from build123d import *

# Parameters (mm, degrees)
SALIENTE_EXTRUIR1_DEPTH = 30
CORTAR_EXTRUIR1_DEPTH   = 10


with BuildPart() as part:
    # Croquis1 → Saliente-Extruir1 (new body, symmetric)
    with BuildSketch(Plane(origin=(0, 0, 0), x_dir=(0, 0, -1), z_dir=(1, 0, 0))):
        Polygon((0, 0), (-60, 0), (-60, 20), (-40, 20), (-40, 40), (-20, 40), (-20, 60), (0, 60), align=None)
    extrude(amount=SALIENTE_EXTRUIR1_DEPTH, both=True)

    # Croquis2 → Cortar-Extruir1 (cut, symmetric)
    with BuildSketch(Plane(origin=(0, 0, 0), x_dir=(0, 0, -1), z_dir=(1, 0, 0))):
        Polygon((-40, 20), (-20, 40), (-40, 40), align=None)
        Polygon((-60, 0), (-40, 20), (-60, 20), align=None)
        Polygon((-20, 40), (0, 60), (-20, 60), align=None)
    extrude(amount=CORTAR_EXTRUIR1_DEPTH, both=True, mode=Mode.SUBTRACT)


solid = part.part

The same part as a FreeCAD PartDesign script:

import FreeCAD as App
import Part
import Sketcher
from FreeCAD import Vector
Q = App.Units.Quantity

doc = App.newDocument("Part")
body = doc.addObject("PartDesign::Body", "Body")

# Sketch on YZ plane
sketch1 = body.newObject("Sketcher::SketchObject", "Sketch")
sketch1.AttachmentSupport = (doc.getObject("YZ_Plane"), [""])
sketch1.MapMode = "FlatFace"
sketch1.addGeometry([
    Part.LineSegment(Vector(0, 60, 0), Vector(0, 0, 0)),  # 0
    Part.LineSegment(Vector(0, 0, 0), Vector(60, 0, 0)),  # 1
    Part.LineSegment(Vector(60, 0, 0), Vector(60, 20, 0)),  # 2
    Part.LineSegment(Vector(60, 20, 0), Vector(40, 20, 0)),  # 3
    Part.LineSegment(Vector(40, 20, 0), Vector(40, 40, 0)),  # 4
    Part.LineSegment(Vector(40, 40, 0), Vector(20, 40, 0)),  # 5
    Part.LineSegment(Vector(20, 40, 0), Vector(20, 60, 0)),  # 6
    Part.LineSegment(Vector(20, 60, 0), Vector(0, 60, 0)),  # 7
], False)
sketch1.addConstraint([
    Sketcher.Constraint("Coincident", 0, 2, 1, 1),
    Sketcher.Constraint("Coincident", 1, 2, 2, 1),
    Sketcher.Constraint("Coincident", 2, 2, 3, 1),
    Sketcher.Constraint("Coincident", 3, 2, 4, 1),
    Sketcher.Constraint("Coincident", 4, 2, 5, 1),
    Sketcher.Constraint("Coincident", 5, 2, 6, 1),
    Sketcher.Constraint("Coincident", 6, 2, 7, 1),
    Sketcher.Constraint("Coincident", 7, 2, 0, 1),
    Sketcher.Constraint("Vertical", 0),
    Sketcher.Constraint("Horizontal", 1),
    Sketcher.Constraint("Vertical", 2),
    Sketcher.Constraint("Horizontal", 3),
    Sketcher.Constraint("Vertical", 4),
    Sketcher.Constraint("Horizontal", 5),
    Sketcher.Constraint("Vertical", 6),
    Sketcher.Constraint("Horizontal", 7),
    Sketcher.Constraint("Coincident", 0, 2, -1, 1),
    Sketcher.Constraint("Equal", 3, 5),
    Sketcher.Constraint("Equal", 5, 7),
    Sketcher.Constraint("Equal", 1, 0),
    Sketcher.Constraint("Equal", 7, 2),
    Sketcher.Constraint("Equal", 2, 4),
    Sketcher.Constraint("DistanceX", 1, 1, 1, 2, Q("60 mm")),
])
pad1 = body.newObject("PartDesign::Pad", "Pad")
pad1.Profile = sketch1
pad1.Length = 60
pad1.Midplane = True

# Sketch on YZ plane
sketch2 = body.newObject("Sketcher::SketchObject", "Sketch001")
sketch2.AttachmentSupport = (doc.getObject("YZ_Plane"), [""])
sketch2.MapMode = "FlatFace"
sketch2.addGeometry([
    Part.LineSegment(Vector(20, 40, 0), Vector(40, 20, 0)),  # 0
    Part.LineSegment(Vector(40, 20, 0), Vector(40, 40, 0)),  # 1
    Part.LineSegment(Vector(40, 40, 0), Vector(20, 40, 0)),  # 2
    Part.LineSegment(Vector(0, 60, 0), Vector(20, 40, 0)),  # 3
    Part.LineSegment(Vector(20, 40, 0), Vector(20, 60, 0)),  # 4
    Part.LineSegment(Vector(20, 60, 0), Vector(0, 60, 0)),  # 5
    Part.LineSegment(Vector(40, 20, 0), Vector(60, 0, 0)),  # 6
    Part.LineSegment(Vector(60, 0, 0), Vector(60, 20, 0)),  # 7
    Part.LineSegment(Vector(60, 20, 0), Vector(40, 20, 0)),  # 8
], False)
sketch2.addConstraint([
    Sketcher.Constraint("Coincident", 0, 2, 1, 1),
    Sketcher.Constraint("Coincident", 1, 2, 2, 1),
    Sketcher.Constraint("Coincident", 2, 2, 0, 1),
    Sketcher.Constraint("Coincident", 3, 2, 4, 1),
    Sketcher.Constraint("Coincident", 4, 2, 5, 1),
    Sketcher.Constraint("Coincident", 5, 2, 3, 1),
    Sketcher.Constraint("Coincident", 6, 2, 7, 1),
    Sketcher.Constraint("Coincident", 7, 2, 8, 1),
    Sketcher.Constraint("Coincident", 8, 2, 6, 1),
    Sketcher.Constraint("Vertical", 1),
    Sketcher.Constraint("Horizontal", 2),
    Sketcher.Constraint("Vertical", 4),
    Sketcher.Constraint("Horizontal", 5),
    Sketcher.Constraint("Vertical", 7),
    Sketcher.Constraint("Horizontal", 8),
    Sketcher.Constraint("Coincident", 3, 2, 2, 2),
    Sketcher.Constraint("Coincident", 8, 2, 0, 2),
    Sketcher.Constraint("PointOnObject", 5, 2, -2),
    Sketcher.Constraint("PointOnObject", 6, 2, -1),
    Sketcher.Constraint("Parallel", 0, 3),
    Sketcher.Constraint("Parallel", 3, 6),
    Sketcher.Constraint("Equal", 2, 5),
    Sketcher.Constraint("Equal", 5, 8),
    Sketcher.Constraint("Equal", 8, 1),
    Sketcher.Constraint("DistanceX", 2, 2, 2, 1, Q("20 mm")),
])
pocket1 = body.newObject("PartDesign::Pocket", "Pocket")
pocket1.Profile = sketch2
pocket1.Length = 20
pocket1.Midplane = True

doc.recompute()
